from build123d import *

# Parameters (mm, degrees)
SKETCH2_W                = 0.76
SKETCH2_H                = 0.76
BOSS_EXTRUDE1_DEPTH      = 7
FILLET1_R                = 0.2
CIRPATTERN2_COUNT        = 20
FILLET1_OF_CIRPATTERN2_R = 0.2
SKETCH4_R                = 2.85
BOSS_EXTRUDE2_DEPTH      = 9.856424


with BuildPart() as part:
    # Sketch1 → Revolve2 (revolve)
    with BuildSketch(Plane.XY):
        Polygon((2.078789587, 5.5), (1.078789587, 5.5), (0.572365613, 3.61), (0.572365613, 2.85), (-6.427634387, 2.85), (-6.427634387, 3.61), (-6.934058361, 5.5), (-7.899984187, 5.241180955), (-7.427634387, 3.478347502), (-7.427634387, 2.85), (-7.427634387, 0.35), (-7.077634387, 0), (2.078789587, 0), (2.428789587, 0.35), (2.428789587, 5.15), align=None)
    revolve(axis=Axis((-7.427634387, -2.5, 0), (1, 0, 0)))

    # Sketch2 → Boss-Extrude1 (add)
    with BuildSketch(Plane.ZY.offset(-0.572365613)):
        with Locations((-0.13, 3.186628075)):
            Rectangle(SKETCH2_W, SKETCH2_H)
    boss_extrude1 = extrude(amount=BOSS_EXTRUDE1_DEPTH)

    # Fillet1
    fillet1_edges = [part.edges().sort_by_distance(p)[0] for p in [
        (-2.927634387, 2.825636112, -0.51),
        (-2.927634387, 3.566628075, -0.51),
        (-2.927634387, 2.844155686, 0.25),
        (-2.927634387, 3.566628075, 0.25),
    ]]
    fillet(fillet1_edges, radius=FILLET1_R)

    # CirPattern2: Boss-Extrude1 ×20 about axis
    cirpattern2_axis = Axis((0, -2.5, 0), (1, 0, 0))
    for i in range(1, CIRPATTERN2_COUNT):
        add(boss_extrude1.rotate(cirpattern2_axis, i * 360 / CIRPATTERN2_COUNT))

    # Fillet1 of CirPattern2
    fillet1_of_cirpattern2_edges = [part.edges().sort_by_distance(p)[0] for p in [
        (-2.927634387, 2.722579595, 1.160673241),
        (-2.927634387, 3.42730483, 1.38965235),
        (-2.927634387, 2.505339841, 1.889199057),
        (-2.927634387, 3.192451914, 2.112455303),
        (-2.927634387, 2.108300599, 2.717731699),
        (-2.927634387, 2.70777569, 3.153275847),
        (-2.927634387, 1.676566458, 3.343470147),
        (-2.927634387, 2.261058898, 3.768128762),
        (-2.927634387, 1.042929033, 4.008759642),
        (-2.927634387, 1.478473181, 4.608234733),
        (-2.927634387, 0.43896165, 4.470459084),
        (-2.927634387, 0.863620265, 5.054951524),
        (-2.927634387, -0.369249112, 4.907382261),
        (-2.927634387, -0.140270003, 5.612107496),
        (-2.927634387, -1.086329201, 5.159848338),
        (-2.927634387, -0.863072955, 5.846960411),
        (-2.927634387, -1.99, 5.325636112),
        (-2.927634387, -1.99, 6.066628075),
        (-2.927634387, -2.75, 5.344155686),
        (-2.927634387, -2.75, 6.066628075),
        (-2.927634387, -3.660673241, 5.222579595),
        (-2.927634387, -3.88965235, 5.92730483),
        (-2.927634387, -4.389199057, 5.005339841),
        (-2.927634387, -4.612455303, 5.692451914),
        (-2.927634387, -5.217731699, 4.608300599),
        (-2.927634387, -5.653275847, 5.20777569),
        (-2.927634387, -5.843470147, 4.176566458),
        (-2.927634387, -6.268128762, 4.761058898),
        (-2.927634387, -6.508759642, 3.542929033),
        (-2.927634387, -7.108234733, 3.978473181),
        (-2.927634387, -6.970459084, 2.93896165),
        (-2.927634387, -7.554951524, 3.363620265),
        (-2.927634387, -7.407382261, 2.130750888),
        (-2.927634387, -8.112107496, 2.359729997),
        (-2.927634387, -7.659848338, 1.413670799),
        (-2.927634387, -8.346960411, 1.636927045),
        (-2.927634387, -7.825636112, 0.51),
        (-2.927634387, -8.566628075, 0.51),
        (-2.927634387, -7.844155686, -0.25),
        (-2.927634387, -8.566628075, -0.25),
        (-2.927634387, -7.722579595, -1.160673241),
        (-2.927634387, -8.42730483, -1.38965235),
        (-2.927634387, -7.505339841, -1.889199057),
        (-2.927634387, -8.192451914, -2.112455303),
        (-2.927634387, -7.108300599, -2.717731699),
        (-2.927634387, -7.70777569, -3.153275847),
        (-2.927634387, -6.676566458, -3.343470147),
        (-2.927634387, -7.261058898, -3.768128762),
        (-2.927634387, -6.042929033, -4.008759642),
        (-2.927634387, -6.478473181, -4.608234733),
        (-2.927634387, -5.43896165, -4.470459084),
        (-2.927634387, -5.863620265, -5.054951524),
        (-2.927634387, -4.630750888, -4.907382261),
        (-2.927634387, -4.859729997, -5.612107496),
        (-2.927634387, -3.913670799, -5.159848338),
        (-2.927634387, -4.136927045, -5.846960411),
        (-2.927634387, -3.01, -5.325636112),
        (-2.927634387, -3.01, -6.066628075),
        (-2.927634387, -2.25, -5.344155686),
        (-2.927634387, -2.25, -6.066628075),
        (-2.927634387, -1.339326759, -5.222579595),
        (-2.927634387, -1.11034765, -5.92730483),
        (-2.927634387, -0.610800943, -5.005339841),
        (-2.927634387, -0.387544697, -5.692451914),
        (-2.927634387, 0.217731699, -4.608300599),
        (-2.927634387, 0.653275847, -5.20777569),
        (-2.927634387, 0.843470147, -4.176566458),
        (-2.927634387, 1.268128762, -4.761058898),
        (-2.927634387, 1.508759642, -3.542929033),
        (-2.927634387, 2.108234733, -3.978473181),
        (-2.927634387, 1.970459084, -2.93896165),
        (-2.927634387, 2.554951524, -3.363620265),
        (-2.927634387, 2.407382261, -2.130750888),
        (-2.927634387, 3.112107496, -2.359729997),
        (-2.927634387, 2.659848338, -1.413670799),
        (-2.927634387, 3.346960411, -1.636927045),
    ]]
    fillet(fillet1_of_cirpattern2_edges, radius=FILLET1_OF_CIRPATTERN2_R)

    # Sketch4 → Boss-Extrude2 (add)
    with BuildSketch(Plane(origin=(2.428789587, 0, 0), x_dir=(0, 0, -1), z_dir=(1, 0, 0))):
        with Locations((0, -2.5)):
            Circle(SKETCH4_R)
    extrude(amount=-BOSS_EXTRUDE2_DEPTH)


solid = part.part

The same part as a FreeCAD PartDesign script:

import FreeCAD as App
import Part
import Sketcher

V = App.Vector
Q = App.Units.Quantity


def edges_at(feature, points):
    """Names of the edges that pass closest to the given points."""
    edges = feature.Shape.Edges
    near = lambda p: min(range(len(edges)), key=lambda i: edges[i].distToShape(Part.Vertex(*p))[0])
    return sorted({f"Edge{near(p) + 1}" for p in points})

doc = App.newDocument("Part")
body = doc.addObject("PartDesign::Body", "Body")

# Sketch on XY plane
sketch1 = body.newObject("Sketcher::SketchObject", "Sketch")
sketch1.AttachmentSupport = (doc.getObject("XY_Plane"), [""])
sketch1.MapMode = "FlatFace"
sketch1.addGeometry([
    Part.LineSegment(V(2.08, 5.5, 0), V(1.08, 5.5, 0)),  # 0
    Part.LineSegment(V(1.08, 5.5, 0), V(0.57, 3.61, 0)),  # 1
    Part.LineSegment(V(0.57, 3.61, 0), V(0.57, 2.85, 0)),  # 2
    Part.LineSegment(V(0.57, 2.85, 0), V(-6.43, 2.85, 0)),  # 3
    Part.LineSegment(V(-6.43, 2.85, 0), V(-6.43, 3.61, 0)),  # 4
    Part.LineSegment(V(-6.43, 3.61, 0), V(-6.93, 5.5, 0)),  # 5
    Part.LineSegment(V(-6.93, 5.5, 0), V(-7.9, 5.24, 0)),  # 6
    Part.LineSegment(V(-7.9, 5.24, 0), V(-7.43, 3.48, 0)),  # 7
    Part.LineSegment(V(-7.43, 3.48, 0), V(-7.43, 0.35, 0)),  # 8
    Part.LineSegment(V(-7.43, 0.35, 0), V(-7.08, 0, 0)),  # 9
    Part.LineSegment(V(-7.08, 0, 0), V(2.08, 0, 0)),  # 10
    Part.LineSegment(V(2.08, 0, 0), V(2.43, 0.35, 0)),  # 11
    Part.LineSegment(V(2.43, 0.35, 0), V(2.43, 5.15, 0)),  # 12
    Part.LineSegment(V(2.43, 5.15, 0), V(2.08, 5.5, 0)),  # 13
], False)
sketch1.addGeometry(Part.LineSegment(V(-7.9, -2.5, 0), V(2.43, -2.5, 0)), True)  # axis
sketch1.addConstraint([
    Sketcher.Constraint("Coincident", 0, 2, 1, 1),
    Sketcher.Constraint("Coincident", 1, 2, 2, 1),
    Sketcher.Constraint("Coincident", 2, 2, 3, 1),
    Sketcher.Constraint("Coincident", 3, 2, 4, 1),
    Sketcher.Constraint("Coincident", 4, 2, 5, 1),
    Sketcher.Constraint("Coincident", 5, 2, 6, 1),
    Sketcher.Constraint("Coincident", 6, 2, 7, 1),
    Sketcher.Constraint("Coincident", 7, 2, 8, 1),
    Sketcher.Constraint("Coincident", 8, 2, 9, 1),
    Sketcher.Constraint("Coincident", 9, 2, 10, 1),
    Sketcher.Constraint("Coincident", 10, 2, 11, 1),
    Sketcher.Constraint("Coincident", 11, 2, 12, 1),
    Sketcher.Constraint("Coincident", 12, 2, 13, 1),
    Sketcher.Constraint("Coincident", 13, 2, 0, 1),
    Sketcher.Constraint("Horizontal", 0),
    Sketcher.Constraint("Vertical", 2),
    Sketcher.Constraint("Horizontal", 3),
    Sketcher.Constraint("Vertical", 4),
    Sketcher.Constraint("Vertical", 8),
    Sketcher.Constraint("Horizontal", 10),
    Sketcher.Constraint("Vertical", 12),
    Sketcher.Constraint("Horizontal", 14),
    Sketcher.Constraint("PointOnObject", 9, 2, -1),
    Sketcher.Constraint("Perpendicular", 5, 6),
    Sketcher.Constraint("Perpendicular", 6, 7),
    Sketcher.Constraint("Perpendicular", 9, 11),
    Sketcher.Constraint("Perpendicular", 11, 13),
    Sketcher.Constraint("Horizontal", 1, 2, 4, 2),
    Sketcher.Constraint("Horizontal", 0, 2, 5, 2),
    Sketcher.Constraint("Horizontal", 8, 2, 11, 2),
    Sketcher.Constraint("Vertical", 10, 2, 13, 2),
    Sketcher.Constraint("Vertical", 6, 2, 14, 1),
    Sketcher.Constraint("Vertical", 12, 2, 14, 2),
    Sketcher.Constraint("Equal", 1, 5),
    Sketcher.Constraint("Equal", 9, 11),
    Sketcher.Constraint("DistanceX", 0, 2, 0, 1, 1.0),
    Sketcher.Constraint("DistanceX", 3, 2, 3, 1, 7.0),
    Sketcher.Constraint("Angle", 1, Q("-105 deg")),
    Sketcher.Constraint("Distance", 6, 1.0),
    Sketcher.Constraint("DistanceY", 12, 1, 12, 2, 4.8),
    Sketcher.Constraint("DistanceX", 7, 2, 4, 2, 1.0),
    Sketcher.Constraint("DistanceY", 2, 2, 2, 1, 0.76),
    Sketcher.Constraint("DistanceY", -1, 1, 0, 2, 5.5),
    Sketcher.Constraint("DistanceY", 14, 1, -1, 1, 2.5),
    Sketcher.Constraint("DistanceY", 8, 2, 3, 2, 2.5),
    Sketcher.Constraint("DistanceX", -1, 1, 0, 2, 1.07879),
])
revolution = body.newObject("PartDesign::Revolution", "Revolution")
revolution.Profile = sketch1
revolution.ReferenceAxis = (sketch1, ["Axis0"])
revolution.Angle = 360

# Sketch on YZ plane
sketch2 = body.newObject("Sketcher::SketchObject", "Sketch001")
sketch2.AttachmentSupport = (doc.getObject("YZ_Plane"), [""])
sketch2.MapMode = "FlatFace"
sketch2.AttachmentOffset = App.Placement(V(0, 0, 0.572366), App.Rotation())
sketch2.addGeometry([
    Part.LineSegment(V(3.6, -0.5, 0), V(2.8, -0.5, 0)),
    Part.LineSegment(V(2.8, -0.5, 0), V(2.8, 0.2, 0)),
    Part.LineSegment(V(2.8, 0.2, 0), V(3.6, 0.2, 0)),
    Part.LineSegment(V(3.6, 0.2, 0), V(3.6, -0.5, 0)),
], False)
sketch2.addConstraint([
    Sketcher.Constraint("Coincident", 0, 2, 1, 1),
    Sketcher.Constraint("Coincident", 1, 2, 2, 1),
    Sketcher.Constraint("Coincident", 2, 2, 3, 1),
    Sketcher.Constraint("Coincident", 3, 2, 0, 1),
    Sketcher.Constraint("Horizontal", 0),
    Sketcher.Constraint("Vertical", 1),
    Sketcher.Constraint("Horizontal", 2),
    Sketcher.Constraint("Vertical", 3),
    Sketcher.Constraint("Equal", 2, 1),
    Sketcher.Constraint("DistanceX", 0, 2, 0, 1, 0.76),
    Sketcher.Constraint("DistanceY", 0, 2, -1, 1, 0.51),
    Sketcher.Constraint("DistanceX", -1, 1, 0, 2, 2.806628),
])
pad1 = body.newObject("PartDesign::Pad", "Pad")
pad1.Profile = sketch2
pad1.Length = 7
pad1.Reversed = True
doc.recompute()

fillet = body.newObject("PartDesign::Fillet", "Fillet")
fillet.Base = (pad1, edges_at(pad1, [
    (-2.928, 2.826, -0.51),
    (-2.928, 3.567, -0.51),
    (-2.928, 2.844, 0.25),
    (-2.928, 3.567, 0.25),
]))
fillet.Radius = 0.2
doc.recompute()

datumline = body.newObject("PartDesign::Line", "DatumLine")
datumline.Placement = App.Placement(V(0, -2.5, 0), App.Rotation(V(0, 0, 1), V(1, 0, 0)))
polarpattern = body.newObject("PartDesign::PolarPattern", "PolarPattern")
polarpattern.Originals = [pad1]
polarpattern.Axis = (datumline, [""])
polarpattern.Angle = 360
polarpattern.Occurrences = 20
body.Tip = polarpattern
doc.recompute()

fillet2 = body.newObject("PartDesign::Fillet", "Fillet001")
fillet2.Base = (polarpattern, edges_at(polarpattern, [
    (-2.928, 2.723, 1.161),
    (-2.928, 3.427, 1.39),
    (-2.928, 2.505, 1.889),
    (-2.928, 3.192, 2.112),
    (-2.928, 2.108, 2.718),
    (-2.928, 2.708, 3.153),
    (-2.928, 1.677, 3.343),
    (-2.928, 2.261, 3.768),
    (-2.928, 1.043, 4.009),
    (-2.928, 1.478, 4.608),
    (-2.928, 0.439, 4.47),
    (-2.928, 0.864, 5.055),
    (-2.928, -0.369, 4.907),
    (-2.928, -0.14, 5.612),
    (-2.928, -1.086, 5.16),
    (-2.928, -0.863, 5.847),
    (-2.928, -1.99, 5.326),
    (-2.928, -1.99, 6.067),
    (-2.928, -2.75, 5.344),
    (-2.928, -2.75, 6.067),
    (-2.928, -3.661, 5.223),
    (-2.928, -3.89, 5.927),
    (-2.928, -4.389, 5.005),
    (-2.928, -4.612, 5.692),
    (-2.928, -5.218, 4.608),
    (-2.928, -5.653, 5.208),
    (-2.928, -5.843, 4.177),
    (-2.928, -6.268, 4.761),
    (-2.928, -6.509, 3.543),
    (-2.928, -7.108, 3.978),
    (-2.928, -6.97, 2.939),
    (-2.928, -7.555, 3.364),
    (-2.928, -7.407, 2.131),
    (-2.928, -8.112, 2.36),
    (-2.928, -7.66, 1.414),
    (-2.928, -8.347, 1.637),
    (-2.928, -7.826, 0.51),
    (-2.928, -8.567, 0.51),
    (-2.928, -7.844, -0.25),
    (-2.928, -8.567, -0.25),
    (-2.928, -7.723, -1.161),
    (-2.928, -8.427, -1.39),
    (-2.928, -7.505, -1.889),
    (-2.928, -8.192, -2.112),
    (-2.928, -7.108, -2.718),
    (-2.928, -7.708, -3.153),
    (-2.928, -6.677, -3.343),
    (-2.928, -7.261, -3.768),
    (-2.928, -6.043, -4.009),
    (-2.928, -6.478, -4.608),
    (-2.928, -5.439, -4.47),
    (-2.928, -5.864, -5.055),
    (-2.928, -4.631, -4.907),
    (-2.928, -4.86, -5.612),
    (-2.928, -3.914, -5.16),
    (-2.928, -4.137, -5.847),
    (-2.928, -3.01, -5.326),
    (-2.928, -3.01, -6.067),
    (-2.928, -2.25, -5.344),
    (-2.928, -2.25, -6.067),
    (-2.928, -1.339, -5.223),
    (-2.928, -1.11, -5.927),
    (-2.928, -0.611, -5.005),
    (-2.928, -0.388, -5.692),
    (-2.928, 0.218, -4.608),
    (-2.928, 0.653, -5.208),
    (-2.928, 0.843, -4.177),
    (-2.928, 1.268, -4.761),
    (-2.928, 1.509, -3.543),
    (-2.928, 2.108, -3.978),
    (-2.928, 1.97, -2.939),
    (-2.928, 2.555, -3.364),
    (-2.928, 2.407, -2.131),
    (-2.928, 3.112, -2.36),
    (-2.928, 2.66, -1.414),
    (-2.928, 3.347, -1.637),
]))
fillet2.Radius = 0.2

# Sketch on YZ plane
sketch3 = body.newObject("Sketcher::SketchObject", "Sketch002")
sketch3.AttachmentSupport = (doc.getObject("YZ_Plane"), [""])
sketch3.MapMode = "FlatFace"
sketch3.AttachmentOffset = App.Placement(V(0, 0, 2.42879), App.Rotation())
sketch3.addGeometry(Part.Circle(V(-2.5, 0, 0), V(0, 0, 1), 2.9), False)
sketch3.addConstraint([
    Sketcher.Constraint("PointOnObject", 0, 3, -1),
    Sketcher.Constraint("Diameter", 0, 5.7),
    Sketcher.Constraint("DistanceX", 0, 3, -1, 1, 2.5),
])
pad2 = body.newObject("PartDesign::Pad", "Pad001")
pad2.Profile = sketch3
pad2.Length = 9.856424
pad2.Reversed = True

doc.recompute()
